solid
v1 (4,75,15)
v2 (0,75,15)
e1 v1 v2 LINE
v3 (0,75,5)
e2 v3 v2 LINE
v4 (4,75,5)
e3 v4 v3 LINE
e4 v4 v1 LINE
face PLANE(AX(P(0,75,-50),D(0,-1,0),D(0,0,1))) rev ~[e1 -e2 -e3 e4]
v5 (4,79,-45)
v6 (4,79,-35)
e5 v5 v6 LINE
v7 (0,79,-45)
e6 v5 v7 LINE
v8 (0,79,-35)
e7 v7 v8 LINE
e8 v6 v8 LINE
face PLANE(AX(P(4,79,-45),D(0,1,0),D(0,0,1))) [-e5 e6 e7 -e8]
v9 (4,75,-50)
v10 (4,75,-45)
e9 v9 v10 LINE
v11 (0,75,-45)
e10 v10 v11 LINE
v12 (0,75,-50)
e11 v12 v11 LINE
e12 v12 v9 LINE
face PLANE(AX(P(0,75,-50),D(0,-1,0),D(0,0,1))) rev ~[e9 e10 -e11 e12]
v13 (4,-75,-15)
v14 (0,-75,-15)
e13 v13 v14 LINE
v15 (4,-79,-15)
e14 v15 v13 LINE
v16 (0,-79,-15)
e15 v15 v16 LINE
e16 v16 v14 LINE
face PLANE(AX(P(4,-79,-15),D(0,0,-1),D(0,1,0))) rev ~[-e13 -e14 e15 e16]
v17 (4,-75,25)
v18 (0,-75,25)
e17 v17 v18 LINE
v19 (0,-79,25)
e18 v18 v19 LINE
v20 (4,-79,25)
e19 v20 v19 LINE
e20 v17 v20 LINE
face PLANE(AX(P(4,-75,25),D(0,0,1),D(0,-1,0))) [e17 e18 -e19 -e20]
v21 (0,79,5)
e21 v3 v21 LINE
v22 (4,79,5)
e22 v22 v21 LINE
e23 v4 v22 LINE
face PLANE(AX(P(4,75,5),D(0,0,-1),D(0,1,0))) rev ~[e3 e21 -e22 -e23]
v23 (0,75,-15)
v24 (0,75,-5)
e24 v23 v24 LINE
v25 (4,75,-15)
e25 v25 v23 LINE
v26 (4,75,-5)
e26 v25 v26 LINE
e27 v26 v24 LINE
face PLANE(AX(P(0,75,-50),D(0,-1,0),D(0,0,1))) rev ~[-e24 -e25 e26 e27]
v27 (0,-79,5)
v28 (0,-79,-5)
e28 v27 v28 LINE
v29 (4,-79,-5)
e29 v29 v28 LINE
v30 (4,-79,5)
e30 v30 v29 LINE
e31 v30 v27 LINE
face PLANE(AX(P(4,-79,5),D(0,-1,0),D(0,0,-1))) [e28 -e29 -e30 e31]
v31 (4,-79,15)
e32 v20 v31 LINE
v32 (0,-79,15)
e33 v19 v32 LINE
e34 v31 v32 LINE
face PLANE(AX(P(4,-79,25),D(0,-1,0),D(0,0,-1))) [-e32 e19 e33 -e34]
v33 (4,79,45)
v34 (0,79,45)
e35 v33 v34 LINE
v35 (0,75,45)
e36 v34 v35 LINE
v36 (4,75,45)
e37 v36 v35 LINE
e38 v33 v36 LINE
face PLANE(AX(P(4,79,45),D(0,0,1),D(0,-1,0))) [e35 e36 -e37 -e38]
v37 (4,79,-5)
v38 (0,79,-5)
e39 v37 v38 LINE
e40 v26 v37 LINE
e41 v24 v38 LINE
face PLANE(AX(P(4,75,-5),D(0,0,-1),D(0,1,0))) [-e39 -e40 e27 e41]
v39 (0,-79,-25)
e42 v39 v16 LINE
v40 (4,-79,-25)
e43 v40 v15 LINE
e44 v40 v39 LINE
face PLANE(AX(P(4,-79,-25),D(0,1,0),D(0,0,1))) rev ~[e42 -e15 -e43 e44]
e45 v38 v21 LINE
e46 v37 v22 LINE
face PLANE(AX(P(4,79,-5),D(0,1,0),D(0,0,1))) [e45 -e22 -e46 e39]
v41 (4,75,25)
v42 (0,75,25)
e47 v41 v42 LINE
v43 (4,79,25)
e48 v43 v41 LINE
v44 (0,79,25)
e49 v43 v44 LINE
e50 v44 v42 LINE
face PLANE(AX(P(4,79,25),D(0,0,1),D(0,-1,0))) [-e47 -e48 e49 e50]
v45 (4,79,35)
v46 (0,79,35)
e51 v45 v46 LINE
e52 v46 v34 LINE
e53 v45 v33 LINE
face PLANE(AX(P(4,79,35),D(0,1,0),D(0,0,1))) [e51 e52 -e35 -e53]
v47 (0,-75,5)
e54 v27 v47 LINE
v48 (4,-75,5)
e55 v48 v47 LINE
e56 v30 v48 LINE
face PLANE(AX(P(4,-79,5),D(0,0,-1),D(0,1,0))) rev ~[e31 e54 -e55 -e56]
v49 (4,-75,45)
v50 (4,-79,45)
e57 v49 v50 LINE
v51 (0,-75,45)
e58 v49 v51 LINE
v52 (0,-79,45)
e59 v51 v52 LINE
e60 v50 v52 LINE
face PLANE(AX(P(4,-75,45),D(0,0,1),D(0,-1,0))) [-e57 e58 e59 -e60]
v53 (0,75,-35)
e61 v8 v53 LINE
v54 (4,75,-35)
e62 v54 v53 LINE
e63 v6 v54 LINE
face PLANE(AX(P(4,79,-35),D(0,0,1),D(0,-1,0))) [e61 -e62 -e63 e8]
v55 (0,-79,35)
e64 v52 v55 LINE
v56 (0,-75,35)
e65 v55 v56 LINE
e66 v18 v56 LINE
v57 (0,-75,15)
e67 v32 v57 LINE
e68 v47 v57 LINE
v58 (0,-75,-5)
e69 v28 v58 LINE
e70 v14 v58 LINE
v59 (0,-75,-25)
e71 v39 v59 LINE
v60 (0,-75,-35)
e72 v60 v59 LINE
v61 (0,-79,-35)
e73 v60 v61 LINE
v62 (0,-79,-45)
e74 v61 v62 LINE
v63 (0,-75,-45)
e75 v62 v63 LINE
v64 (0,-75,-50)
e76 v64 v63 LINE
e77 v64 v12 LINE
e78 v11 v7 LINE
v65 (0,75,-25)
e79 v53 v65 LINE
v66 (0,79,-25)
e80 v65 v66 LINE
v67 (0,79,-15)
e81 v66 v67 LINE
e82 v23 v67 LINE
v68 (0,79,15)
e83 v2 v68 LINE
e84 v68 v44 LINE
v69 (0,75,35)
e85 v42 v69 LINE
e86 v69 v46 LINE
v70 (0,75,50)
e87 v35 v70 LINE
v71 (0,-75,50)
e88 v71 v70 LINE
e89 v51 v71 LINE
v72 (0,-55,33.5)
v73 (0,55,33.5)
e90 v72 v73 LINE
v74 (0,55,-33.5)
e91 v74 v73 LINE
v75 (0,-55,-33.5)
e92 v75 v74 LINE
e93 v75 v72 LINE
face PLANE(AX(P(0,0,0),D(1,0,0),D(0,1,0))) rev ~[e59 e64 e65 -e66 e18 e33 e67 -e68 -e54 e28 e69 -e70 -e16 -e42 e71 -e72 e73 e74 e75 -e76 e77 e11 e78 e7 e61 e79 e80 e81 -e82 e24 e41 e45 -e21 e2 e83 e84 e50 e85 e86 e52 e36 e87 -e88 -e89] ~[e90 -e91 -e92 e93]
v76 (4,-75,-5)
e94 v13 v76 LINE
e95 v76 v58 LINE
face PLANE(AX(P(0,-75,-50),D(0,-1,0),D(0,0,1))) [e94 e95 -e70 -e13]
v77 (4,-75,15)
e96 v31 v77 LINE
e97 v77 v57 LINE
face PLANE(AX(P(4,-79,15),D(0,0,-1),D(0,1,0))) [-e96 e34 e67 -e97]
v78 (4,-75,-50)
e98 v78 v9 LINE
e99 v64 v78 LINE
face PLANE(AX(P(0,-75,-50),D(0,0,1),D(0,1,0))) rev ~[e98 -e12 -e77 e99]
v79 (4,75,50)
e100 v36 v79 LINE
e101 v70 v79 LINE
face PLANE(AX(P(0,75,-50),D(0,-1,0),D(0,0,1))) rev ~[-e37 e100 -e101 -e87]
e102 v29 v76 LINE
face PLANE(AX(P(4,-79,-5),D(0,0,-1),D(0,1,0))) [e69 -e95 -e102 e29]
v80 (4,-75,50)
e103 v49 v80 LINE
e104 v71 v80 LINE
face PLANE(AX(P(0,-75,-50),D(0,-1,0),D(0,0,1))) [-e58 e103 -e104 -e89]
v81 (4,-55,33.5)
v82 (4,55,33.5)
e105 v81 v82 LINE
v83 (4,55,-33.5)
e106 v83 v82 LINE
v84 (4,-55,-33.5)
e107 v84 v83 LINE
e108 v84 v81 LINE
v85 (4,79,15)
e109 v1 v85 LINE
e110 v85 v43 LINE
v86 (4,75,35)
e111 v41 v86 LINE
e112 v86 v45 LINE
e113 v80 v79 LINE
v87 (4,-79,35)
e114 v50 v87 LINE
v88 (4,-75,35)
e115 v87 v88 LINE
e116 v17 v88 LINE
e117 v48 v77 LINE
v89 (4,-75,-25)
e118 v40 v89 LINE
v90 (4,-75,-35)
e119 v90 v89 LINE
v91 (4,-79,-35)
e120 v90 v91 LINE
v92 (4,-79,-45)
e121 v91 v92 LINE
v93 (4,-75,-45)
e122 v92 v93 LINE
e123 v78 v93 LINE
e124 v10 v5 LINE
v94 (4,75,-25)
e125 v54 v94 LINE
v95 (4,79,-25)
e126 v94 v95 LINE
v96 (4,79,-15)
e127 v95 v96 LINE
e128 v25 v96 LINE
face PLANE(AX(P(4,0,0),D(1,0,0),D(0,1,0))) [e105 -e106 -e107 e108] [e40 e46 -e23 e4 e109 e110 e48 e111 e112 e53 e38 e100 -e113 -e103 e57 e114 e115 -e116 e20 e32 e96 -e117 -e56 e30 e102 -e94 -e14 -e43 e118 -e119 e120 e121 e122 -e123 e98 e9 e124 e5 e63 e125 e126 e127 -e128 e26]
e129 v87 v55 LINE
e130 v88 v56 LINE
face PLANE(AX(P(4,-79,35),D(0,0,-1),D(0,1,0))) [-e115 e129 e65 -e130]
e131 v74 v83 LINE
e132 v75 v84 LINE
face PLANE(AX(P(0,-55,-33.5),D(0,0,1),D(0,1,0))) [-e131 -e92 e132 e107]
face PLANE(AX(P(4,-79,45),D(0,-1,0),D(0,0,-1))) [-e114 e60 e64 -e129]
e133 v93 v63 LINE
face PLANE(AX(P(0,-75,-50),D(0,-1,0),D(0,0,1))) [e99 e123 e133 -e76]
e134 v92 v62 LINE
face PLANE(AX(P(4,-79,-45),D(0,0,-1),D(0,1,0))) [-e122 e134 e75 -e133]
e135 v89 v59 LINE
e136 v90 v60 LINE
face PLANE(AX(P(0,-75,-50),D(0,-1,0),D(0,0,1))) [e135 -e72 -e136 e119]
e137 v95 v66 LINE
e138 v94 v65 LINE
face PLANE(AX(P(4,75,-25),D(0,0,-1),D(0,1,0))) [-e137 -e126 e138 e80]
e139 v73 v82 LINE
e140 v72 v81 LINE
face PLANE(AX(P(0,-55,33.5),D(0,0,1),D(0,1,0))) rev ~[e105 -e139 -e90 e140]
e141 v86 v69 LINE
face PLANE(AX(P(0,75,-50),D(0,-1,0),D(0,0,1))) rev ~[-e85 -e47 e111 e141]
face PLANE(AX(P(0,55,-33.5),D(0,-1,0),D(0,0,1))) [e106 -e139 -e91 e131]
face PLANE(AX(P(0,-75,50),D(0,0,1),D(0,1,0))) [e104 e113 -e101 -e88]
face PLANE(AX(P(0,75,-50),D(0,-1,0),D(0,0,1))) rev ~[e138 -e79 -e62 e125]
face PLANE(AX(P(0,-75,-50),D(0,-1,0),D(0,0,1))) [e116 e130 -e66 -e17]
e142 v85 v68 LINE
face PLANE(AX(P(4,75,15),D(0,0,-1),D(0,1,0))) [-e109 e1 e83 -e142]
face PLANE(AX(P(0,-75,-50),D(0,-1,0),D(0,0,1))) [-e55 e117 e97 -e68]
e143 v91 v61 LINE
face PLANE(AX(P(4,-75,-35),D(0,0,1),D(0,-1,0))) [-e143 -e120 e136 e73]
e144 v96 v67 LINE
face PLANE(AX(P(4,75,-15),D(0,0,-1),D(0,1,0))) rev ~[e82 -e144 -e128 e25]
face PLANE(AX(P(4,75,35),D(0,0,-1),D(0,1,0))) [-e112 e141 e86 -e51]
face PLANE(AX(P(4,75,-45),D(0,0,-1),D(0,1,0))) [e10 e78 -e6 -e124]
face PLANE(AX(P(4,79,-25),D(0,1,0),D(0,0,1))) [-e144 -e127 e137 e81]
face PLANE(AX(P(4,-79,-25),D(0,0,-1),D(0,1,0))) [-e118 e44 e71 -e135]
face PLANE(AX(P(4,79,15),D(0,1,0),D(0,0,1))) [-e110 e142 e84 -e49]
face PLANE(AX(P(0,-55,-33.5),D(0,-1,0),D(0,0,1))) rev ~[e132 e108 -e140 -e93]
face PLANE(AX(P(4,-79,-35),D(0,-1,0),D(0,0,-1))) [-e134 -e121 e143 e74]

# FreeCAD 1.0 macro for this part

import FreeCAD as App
import Part
import Sketcher

V = App.Vector
Q = App.Units.Quantity

doc = App.newDocument("Part")
body = doc.addObject("PartDesign::Body", "Body")

# Sketch on YZ plane
sketch1 = body.newObject("Sketcher::SketchObject", "Sketch")
sketch1.AttachmentSupport = (doc.getObject("YZ_Plane"), [""])
sketch1.MapMode = "FlatFace"
sketch1.addGeometry(Part.LineSegment(V(-75, 50, 0), V(-75, -50, 0)), False)
sketch1.addGeometry(Part.LineSegment(V(-75, -50, 0), V(75, -50, 0)), False)
sketch1.addGeometry(Part.LineSegment(V(75, -50, 0), V(75, 50, 0)), False)
sketch1.addGeometry(Part.LineSegment(V(75, 50, 0), V(-75, 50, 0)), False)
sketch1.addGeometry(Part.LineSegment(V(55, -34, 0), V(-55, -34, 0)), False)
sketch1.addGeometry(Part.LineSegment(V(-55, -34, 0), V(-55, 34, 0)), False)
sketch1.addGeometry(Part.LineSegment(V(-55, 34, 0), V(55, 34, 0)), False)
sketch1.addGeometry(Part.LineSegment(V(55, 34, 0), V(55, -34, 0)), False)
sketch1.addConstraint(Sketcher.Constraint("Coincident", 0, 2, 1, 1))
sketch1.addConstraint(Sketcher.Constraint("Coincident", 1, 2, 2, 1))
sketch1.addConstraint(Sketcher.Constraint("Coincident", 2, 2, 3, 1))
sketch1.addConstraint(Sketcher.Constraint("Coincident", 3, 2, 0, 1))
sketch1.addConstraint(Sketcher.Constraint("Coincident", 4, 2, 5, 1))
sketch1.addConstraint(Sketcher.Constraint("Coincident", 5, 2, 6, 1))
sketch1.addConstraint(Sketcher.Constraint("Coincident", 6, 2, 7, 1))
sketch1.addConstraint(Sketcher.Constraint("Coincident", 7, 2, 4, 1))
sketch1.addConstraint(Sketcher.Constraint("Vertical", 0))
sketch1.addConstraint(Sketcher.Constraint("Horizontal", 1))
sketch1.addConstraint(Sketcher.Constraint("Vertical", 2))
sketch1.addConstraint(Sketcher.Constraint("Horizontal", 3))
sketch1.addConstraint(Sketcher.Constraint("Horizontal", 4))
sketch1.addConstraint(Sketcher.Constraint("Vertical", 5))
sketch1.addConstraint(Sketcher.Constraint("Horizontal", 6))
sketch1.addConstraint(Sketcher.Constraint("Vertical", 7))
sketch1.addConstraint(Sketcher.Constraint("Symmetric", 0, 2, 2, 2, -1, 1))
sketch1.addConstraint(Sketcher.Constraint("Symmetric", 4, 2, 6, 2, -1, 1))
sketch1.addConstraint(Sketcher.Constraint("DistanceX", 1, 1, 1, 2, Q("150 mm")))
sketch1.addConstraint(Sketcher.Constraint("DistanceX", 4, 2, 4, 1, Q("110 mm")))
sketch1.addConstraint(Sketcher.Constraint("DistanceY", 0, 2, 0, 1, Q("100 mm")))
sketch1.addConstraint(Sketcher.Constraint("DistanceY", 5, 1, 5, 2, Q("67 mm")))
pad1 = body.newObject("PartDesign::Pad", "Pad")
pad1.Profile = sketch1
pad1.Length = 4

# Sketch on YZ plane
sketch2 = body.newObject("Sketcher::SketchObject", "Sketch001")
sketch2.AttachmentSupport = (doc.getObject("YZ_Plane"), [""])
sketch2.MapMode = "FlatFace"
sketch2.AttachmentOffset = App.Placement(V(0, 0, 4), App.Rotation())
sketch2.addGeometry(Part.LineSegment(V(-79, -5, 0), V(-75, -5, 0)), False)
sketch2.addGeometry(Part.LineSegment(V(-75, -5, 0), V(-75, 5, 0)), False)
sketch2.addGeometry(Part.LineSegment(V(-75, 5, 0), V(-79, 5, 0)), False)
sketch2.addGeometry(Part.LineSegment(V(-79, 5, 0), V(-79, -5, 0)), False)
sketch2.addGeometry(Part.LineSegment(V(-75, 25, 0), V(-79, 25, 0)), False)
sketch2.addGeometry(Part.LineSegment(V(-79, 25, 0), V(-79, 15, 0)), False)
sketch2.addGeometry(Part.LineSegment(V(-79, 15, 0), V(-75, 15, 0)), False)
sketch2.addGeometry(Part.LineSegment(V(-75, 15, 0), V(-75, 25, 0)), False)
sketch2.addGeometry(Part.LineSegment(V(-75, 45, 0), V(-79, 45, 0)), False)
sketch2.addGeometry(Part.LineSegment(V(-79, 45, 0), V(-79, 35, 0)), False)
sketch2.addGeometry(Part.LineSegment(V(-79, 35, 0), V(-75, 35, 0)), False)
sketch2.addGeometry(Part.LineSegment(V(-75, 35, 0), V(-75, 45, 0)), False)
sketch2.addGeometry(Part.LineSegment(V(-79, -45, 0), V(-75, -45, 0)), False)
sketch2.addGeometry(Part.LineSegment(V(-75, -45, 0), V(-75, -35, 0)), False)
sketch2.addGeometry(Part.LineSegment(V(-75, -35, 0), V(-79, -35, 0)), False)
sketch2.addGeometry(Part.LineSegment(V(-79, -35, 0), V(-79, -45, 0)), False)
sketch2.addGeometry(Part.LineSegment(V(-79, -15, 0), V(-79, -25, 0)), False)
sketch2.addGeometry(Part.LineSegment(V(-79, -25, 0), V(-75, -25, 0)), False)
sketch2.addGeometry(Part.LineSegment(V(-75, -25, 0), V(-75, -15, 0)), False)
sketch2.addGeometry(Part.LineSegment(V(-75, -15, 0), V(-79, -15, 0)), False)
sketch2.addGeometry(Part.LineSegment(V(75, -15, 0), V(75, -25, 0)), False)
sketch2.addGeometry(Part.LineSegment(V(75, -25, 0), V(79, -25, 0)), False)
sketch2.addGeometry(Part.LineSegment(V(79, -25, 0), V(79, -15, 0)), False)
sketch2.addGeometry(Part.LineSegment(V(79, -15, 0), V(75, -15, 0)), False)
sketch2.addGeometry(Part.LineSegment(V(79, 15, 0), V(79, 25, 0)), False)
sketch2.addGeometry(Part.LineSegment(V(79, 25, 0), V(75, 25, 0)), False)
sketch2.addGeometry(Part.LineSegment(V(75, 25, 0), V(75, 15, 0)), False)
sketch2.addGeometry(Part.LineSegment(V(75, 15, 0), V(79, 15, 0)), False)
sketch2.addGeometry(Part.LineSegment(V(75, -5, 0), V(79, -5, 0)), False)
sketch2.addGeometry(Part.LineSegment(V(79, -5, 0), V(79, 5, 0)), False)
sketch2.addGeometry(Part.LineSegment(V(79, 5, 0), V(75, 5, 0)), False)
sketch2.addGeometry(Part.LineSegment(V(75, 5, 0), V(75, -5, 0)), False)
sketch2.addGeometry(Part.LineSegment(V(75, 45, 0), V(75, 35, 0)), False)
sketch2.addGeometry(Part.LineSegment(V(75, 35, 0), V(79, 35, 0)), False)
sketch2.addGeometry(Part.LineSegment(V(79, 35, 0), V(79, 45, 0)), False)
sketch2.addGeometry(Part.LineSegment(V(79, 45, 0), V(75, 45, 0)), False)
sketch2.addGeometry(Part.LineSegment(V(79, -35, 0), V(75, -35, 0)), False)
sketch2.addGeometry(Part.LineSegment(V(75, -35, 0), V(75, -45, 0)), False)
sketch2.addGeometry(Part.LineSegment(V(75, -45, 0), V(79, -45, 0)), False)
sketch2.addGeometry(Part.LineSegment(V(79, -45, 0), V(79, -35, 0)), False)
sketch2.addConstraint(Sketcher.Constraint("Coincident", 0, 2, 1, 1))
sketch2.addConstraint(Sketcher.Constraint("Coincident", 1, 2, 2, 1))
sketch2.addConstraint(Sketcher.Constraint("Coincident", 2, 2, 3, 1))
sketch2.addConstraint(Sketcher.Constraint("Coincident", 3, 2, 0, 1))
sketch2.addConstraint(Sketcher.Constraint("Coincident", 4, 2, 5, 1))
sketch2.addConstraint(Sketcher.Constraint("Coincident", 5, 2, 6, 1))
sketch2.addConstraint(Sketcher.Constraint("Coincident", 6, 2, 7, 1))
sketch2.addConstraint(Sketcher.Constraint("Coincident", 7, 2, 4, 1))
sketch2.addConstraint(Sketcher.Constraint("Coincident", 8, 2, 9, 1))
sketch2.addConstraint(Sketcher.Constraint("Coincident", 9, 2, 10, 1))
sketch2.addConstraint(Sketcher.Constraint("Coincident", 10, 2, 11, 1))
sketch2.addConstraint(Sketcher.Constraint("Coincident", 11, 2, 8, 1))
sketch2.addConstraint(Sketcher.Constraint("Coincident", 12, 2, 13, 1))
sketch2.addConstraint(Sketcher.Constraint("Coincident", 13, 2, 14, 1))
sketch2.addConstraint(Sketcher.Constraint("Coincident", 14, 2, 15, 1))
sketch2.addConstraint(Sketcher.Constraint("Coincident", 15, 2, 12, 1))
sketch2.addConstraint(Sketcher.Constraint("Coincident", 16, 2, 17, 1))
sketch2.addConstraint(Sketcher.Constraint("Coincident", 17, 2, 18, 1))
sketch2.addConstraint(Sketcher.Constraint("Coincident", 18, 2, 19, 1))
sketch2.addConstraint(Sketcher.Constraint("Coincident", 19, 2, 16, 1))
sketch2.addConstraint(Sketcher.Constraint("Coincident", 20, 2, 21, 1))
sketch2.addConstraint(Sketcher.Constraint("Coincident", 21, 2, 22, 1))
sketch2.addConstraint(Sketcher.Constraint("Coincident", 22, 2, 23, 1))
sketch2.addConstraint(Sketcher.Constraint("Coincident", 23, 2, 20, 1))
sketch2.addConstraint(Sketcher.Constraint("Coincident", 24, 2, 25, 1))
sketch2.addConstraint(Sketcher.Constraint("Coincident", 25, 2, 26, 1))
sketch2.addConstraint(Sketcher.Constraint("Coincident", 26, 2, 27, 1))
sketch2.addConstraint(Sketcher.Constraint("Coincident", 27, 2, 24, 1))
sketch2.addConstraint(Sketcher.Constraint("Coincident", 28, 2, 29, 1))
sketch2.addConstraint(Sketcher.Constraint("Coincident", 29, 2, 30, 1))
sketch2.addConstraint(Sketcher.Constraint("Coincident", 30, 2, 31, 1))
sketch2.addConstraint(Sketcher.Constraint("Coincident", 31, 2, 28, 1))
sketch2.addConstraint(Sketcher.Constraint("Coincident", 32, 2, 33, 1))
sketch2.addConstraint(Sketcher.Constraint("Coincident", 33, 2, 34, 1))
sketch2.addConstraint(Sketcher.Constraint("Coincident", 34, 2, 35, 1))
sketch2.addConstraint(Sketcher.Constraint("Coincident", 35, 2, 32, 1))
sketch2.addConstraint(Sketcher.Constraint("Coincident", 36, 2, 37, 1))
sketch2.addConstraint(Sketcher.Constraint("Coincident", 37, 2, 38, 1))
sketch2.addConstraint(Sketcher.Constraint("Coincident", 38, 2, 39, 1))
sketch2.addConstraint(Sketcher.Constraint("Coincident", 39, 2, 36, 1))
sketch2.addConstraint(Sketcher.Constraint("Horizontal", 0))
sketch2.addConstraint(Sketcher.Constraint("Vertical", 1))
sketch2.addConstraint(Sketcher.Constraint("Horizontal", 2))
sketch2.addConstraint(Sketcher.Constraint("Vertical", 3))
sketch2.addConstraint(Sketcher.Constraint("Horizontal", 4))
sketch2.addConstraint(Sketcher.Constraint("Vertical", 5))
sketch2.addConstraint(Sketcher.Constraint("Horizontal", 6))
sketch2.addConstraint(Sketcher.Constraint("Vertical", 7))
sketch2.addConstraint(Sketcher.Constraint("Horizontal", 8))
sketch2.addConstraint(Sketcher.Constraint("Vertical", 9))
sketch2.addConstraint(Sketcher.Constraint("Horizontal", 10))
sketch2.addConstraint(Sketcher.Constraint("Vertical", 11))
sketch2.addConstraint(Sketcher.Constraint("Horizontal", 12))
sketch2.addConstraint(Sketcher.Constraint("Vertical", 13))
sketch2.addConstraint(Sketcher.Constraint("Horizontal", 14))
sketch2.addConstraint(Sketcher.Constraint("Vertical", 15))
sketch2.addConstraint(Sketcher.Constraint("Vertical", 16))
sketch2.addConstraint(Sketcher.Constraint("Horizontal", 17))
sketch2.addConstraint(Sketcher.Constraint("Vertical", 18))
sketch2.addConstraint(Sketcher.Constraint("Horizontal", 19))
sketch2.addConstraint(Sketcher.Constraint("Vertical", 20))
sketch2.addConstraint(Sketcher.Constraint("Horizontal", 21))
sketch2.addConstraint(Sketcher.Constraint("Vertical", 22))
sketch2.addConstraint(Sketcher.Constraint("Horizontal", 23))
sketch2.addConstraint(Sketcher.Constraint("Vertical", 24))
sketch2.addConstraint(Sketcher.Constraint("Horizontal", 25))
sketch2.addConstraint(Sketcher.Constraint("Vertical", 26))
sketch2.addConstraint(Sketcher.Constraint("Horizontal", 27))
sketch2.addConstraint(Sketcher.Constraint("Horizontal", 28))
sketch2.addConstraint(Sketcher.Constraint("Vertical", 29))
sketch2.addConstraint(Sketcher.Constraint("Horizontal", 30))
sketch2.addConstraint(Sketcher.Constraint("Vertical", 31))
sketch2.addConstraint(Sketcher.Constraint("Vertical", 32))
sketch2.addConstraint(Sketcher.Constraint("Horizontal", 33))
sketch2.addConstraint(Sketcher.Constraint("Vertical", 34))
sketch2.addConstraint(Sketcher.Constraint("Horizontal", 35))
sketch2.addConstraint(Sketcher.Constraint("Horizontal", 36))
sketch2.addConstraint(Sketcher.Constraint("Vertical", 37))
sketch2.addConstraint(Sketcher.Constraint("Horizontal", 38))
sketch2.addConstraint(Sketcher.Constraint("Vertical", 39))
sketch2.addConstraint(Sketcher.Constraint("Symmetric", 7, 2, 20, 2, -1, 1))
sketch2.addConstraint(Sketcher.Constraint("Symmetric", 5, 2, 22, 2, -1, 1))
sketch2.addConstraint(Sketcher.Constraint("Symmetric", 16, 2, 24, 2, -1, 1))
sketch2.addConstraint(Sketcher.Constraint("Symmetric", 18, 2, 26, 2, -1, 1))
sketch2.addConstraint(Sketcher.Constraint("Symmetric", 2, 2, 28, 2, -1, 1))
sketch2.addConstraint(Sketcher.Constraint("Symmetric", 0, 2, 30, 2, -1, 1))
sketch2.addConstraint(Sketcher.Constraint("Symmetric", 13, 2, 32, 2, -1, 1))
sketch2.addConstraint(Sketcher.Constraint("Symmetric", 15, 2, 34, 2, -1, 1))
sketch2.addConstraint(Sketcher.Constraint("Symmetric", 10, 2, 36, 2, -1, 1))
sketch2.addConstraint(Sketcher.Constraint("Symmetric", 8, 2, 38, 2, -1, 1))
sketch2.addConstraint(Sketcher.Constraint("Symmetric", 17, 2, 20, 2, -2))
sketch2.addConstraint(Sketcher.Constraint("Symmetric", 19, 2, 22, 2, -2))
sketch2.addConstraint(Sketcher.Constraint("Symmetric", 10, 2, 32, 2, -2))
sketch2.addConstraint(Sketcher.Constraint("Symmetric", 8, 2, 34, 2, -2))
sketch2.addConstraint(Sketcher.Constraint("Horizontal", 3, 2, 28, 2))
sketch2.addConstraint(Sketcher.Constraint("Vertical", 3, 2, 4, 2))
sketch2.addConstraint(Sketcher.Constraint("Vertical", 1, 2, 6, 2))
sketch2.addConstraint(Sketcher.Constraint("Vertical", 5, 2, 8, 2))
sketch2.addConstraint(Sketcher.Constraint("Vertical", 7, 2, 10, 2))
sketch2.addConstraint(Sketcher.Constraint("Equal", 3, 5))
sketch2.addConstraint(Sketcher.Constraint("Equal", 7, 9))
sketch2.addConstraint(Sketcher.Constraint("DistanceX", 0, 1, 0, 2, Q("4 mm")))
sketch2.addConstraint(Sketcher.Constraint("DistanceY", 1, 1, 1, 2, Q("10 mm")))
sketch2.addConstraint(Sketcher.Constraint("DistanceX", 0, 2, -1, 1, Q("75 mm")))
sketch2.addConstraint(Sketcher.Constraint("DistanceY", -1, 1, 4, 2, Q("25 mm")))
sketch2.addConstraint(Sketcher.Constraint("DistanceY", -1, 1, 8, 2, Q("45 mm")))
pad2 = body.newObject("PartDesign::Pad", "Pad001")
pad2.Profile = sketch2
pad2.Length = 4
pad2.Reversed = True

doc.recompute()
